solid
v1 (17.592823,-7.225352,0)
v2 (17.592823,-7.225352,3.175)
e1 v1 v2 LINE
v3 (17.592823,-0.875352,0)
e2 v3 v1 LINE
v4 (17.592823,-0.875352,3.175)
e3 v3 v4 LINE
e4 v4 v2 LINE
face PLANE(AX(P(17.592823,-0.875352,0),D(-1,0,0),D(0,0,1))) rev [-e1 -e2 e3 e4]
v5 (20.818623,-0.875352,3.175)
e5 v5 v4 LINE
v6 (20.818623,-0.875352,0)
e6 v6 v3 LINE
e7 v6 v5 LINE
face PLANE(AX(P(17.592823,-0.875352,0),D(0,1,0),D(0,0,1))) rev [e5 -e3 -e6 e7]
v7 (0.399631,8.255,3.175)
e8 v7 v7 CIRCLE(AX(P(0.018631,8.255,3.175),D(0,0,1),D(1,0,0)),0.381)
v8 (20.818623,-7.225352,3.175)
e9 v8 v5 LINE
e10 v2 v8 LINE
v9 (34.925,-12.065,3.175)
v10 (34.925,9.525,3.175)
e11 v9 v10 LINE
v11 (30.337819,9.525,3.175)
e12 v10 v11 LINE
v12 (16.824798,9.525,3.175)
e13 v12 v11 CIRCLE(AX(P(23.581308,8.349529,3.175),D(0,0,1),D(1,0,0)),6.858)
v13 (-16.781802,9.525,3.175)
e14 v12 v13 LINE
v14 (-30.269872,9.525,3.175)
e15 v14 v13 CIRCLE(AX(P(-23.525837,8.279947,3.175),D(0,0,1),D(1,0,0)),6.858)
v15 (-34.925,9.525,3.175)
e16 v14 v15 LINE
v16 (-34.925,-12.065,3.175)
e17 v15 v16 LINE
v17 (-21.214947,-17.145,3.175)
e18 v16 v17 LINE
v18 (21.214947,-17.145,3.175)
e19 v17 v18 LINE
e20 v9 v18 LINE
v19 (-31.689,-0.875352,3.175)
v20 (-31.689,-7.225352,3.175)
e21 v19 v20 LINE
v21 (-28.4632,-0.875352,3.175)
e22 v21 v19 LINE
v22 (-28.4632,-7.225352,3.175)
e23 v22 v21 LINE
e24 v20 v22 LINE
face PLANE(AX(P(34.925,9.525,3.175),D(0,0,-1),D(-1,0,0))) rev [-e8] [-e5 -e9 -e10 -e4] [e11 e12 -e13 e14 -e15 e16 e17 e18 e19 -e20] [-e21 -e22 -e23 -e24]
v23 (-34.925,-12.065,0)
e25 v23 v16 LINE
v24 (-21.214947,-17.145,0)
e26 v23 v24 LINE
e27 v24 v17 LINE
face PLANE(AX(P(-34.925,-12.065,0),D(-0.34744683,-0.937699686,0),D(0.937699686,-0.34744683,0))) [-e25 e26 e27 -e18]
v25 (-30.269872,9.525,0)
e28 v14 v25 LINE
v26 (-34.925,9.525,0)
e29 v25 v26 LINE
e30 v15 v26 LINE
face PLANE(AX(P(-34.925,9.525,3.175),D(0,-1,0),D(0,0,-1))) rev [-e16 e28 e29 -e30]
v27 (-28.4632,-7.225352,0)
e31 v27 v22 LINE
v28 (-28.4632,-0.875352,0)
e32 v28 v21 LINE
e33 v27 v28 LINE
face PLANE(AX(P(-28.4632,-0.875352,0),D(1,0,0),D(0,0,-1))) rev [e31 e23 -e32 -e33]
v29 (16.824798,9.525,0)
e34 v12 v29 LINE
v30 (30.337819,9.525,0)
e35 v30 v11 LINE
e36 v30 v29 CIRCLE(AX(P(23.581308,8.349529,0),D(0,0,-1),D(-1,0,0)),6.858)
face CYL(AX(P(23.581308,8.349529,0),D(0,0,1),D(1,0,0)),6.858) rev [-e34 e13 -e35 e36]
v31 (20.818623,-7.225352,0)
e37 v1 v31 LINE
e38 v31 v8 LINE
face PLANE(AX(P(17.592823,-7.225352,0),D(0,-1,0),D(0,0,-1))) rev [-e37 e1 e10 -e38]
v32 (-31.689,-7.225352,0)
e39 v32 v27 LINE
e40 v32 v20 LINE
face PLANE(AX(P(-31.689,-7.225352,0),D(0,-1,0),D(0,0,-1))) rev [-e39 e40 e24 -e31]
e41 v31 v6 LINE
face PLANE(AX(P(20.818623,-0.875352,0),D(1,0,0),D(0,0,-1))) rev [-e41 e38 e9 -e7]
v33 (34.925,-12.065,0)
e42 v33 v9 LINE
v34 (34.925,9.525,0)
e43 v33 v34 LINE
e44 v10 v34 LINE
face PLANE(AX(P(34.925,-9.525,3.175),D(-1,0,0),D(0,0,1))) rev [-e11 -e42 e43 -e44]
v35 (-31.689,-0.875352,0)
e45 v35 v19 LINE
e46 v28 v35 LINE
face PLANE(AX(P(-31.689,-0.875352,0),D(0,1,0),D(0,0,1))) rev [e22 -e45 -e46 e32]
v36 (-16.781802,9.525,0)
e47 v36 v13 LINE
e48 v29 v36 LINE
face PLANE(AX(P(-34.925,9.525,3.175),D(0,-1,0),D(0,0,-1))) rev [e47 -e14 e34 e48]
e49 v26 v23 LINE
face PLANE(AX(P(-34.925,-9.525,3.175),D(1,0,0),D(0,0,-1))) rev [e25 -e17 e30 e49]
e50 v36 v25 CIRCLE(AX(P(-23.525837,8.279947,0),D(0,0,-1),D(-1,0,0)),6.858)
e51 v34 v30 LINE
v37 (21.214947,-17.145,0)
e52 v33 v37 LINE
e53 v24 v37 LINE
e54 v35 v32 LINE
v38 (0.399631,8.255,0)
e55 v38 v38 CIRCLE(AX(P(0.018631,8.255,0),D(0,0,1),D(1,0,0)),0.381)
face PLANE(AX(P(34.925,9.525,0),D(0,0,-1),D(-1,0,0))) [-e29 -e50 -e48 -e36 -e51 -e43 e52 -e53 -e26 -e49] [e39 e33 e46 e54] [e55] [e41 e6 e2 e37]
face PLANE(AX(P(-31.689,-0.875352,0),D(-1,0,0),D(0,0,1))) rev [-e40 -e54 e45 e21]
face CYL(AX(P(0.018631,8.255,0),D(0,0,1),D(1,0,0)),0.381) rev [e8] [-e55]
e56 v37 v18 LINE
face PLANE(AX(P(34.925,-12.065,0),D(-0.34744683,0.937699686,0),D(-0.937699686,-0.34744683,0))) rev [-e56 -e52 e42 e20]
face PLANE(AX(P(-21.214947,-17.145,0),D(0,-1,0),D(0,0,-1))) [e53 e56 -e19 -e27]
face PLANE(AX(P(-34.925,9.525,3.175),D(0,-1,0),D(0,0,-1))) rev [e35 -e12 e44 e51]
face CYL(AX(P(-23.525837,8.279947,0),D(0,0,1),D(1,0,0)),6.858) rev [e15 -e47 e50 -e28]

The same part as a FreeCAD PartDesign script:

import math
import FreeCAD as App
import Part
import Sketcher
Q = App.Units.Quantity


def add_polygon(sketch, points):
    """Adds a closed chain of lines whose ends are joined by coincident constraints."""
    first, n = sketch.GeometryCount, len(points)
    for a, b in zip(points, points[1:] + points[:1]):
        sketch.addGeometry(Part.LineSegment(App.Vector(*a, 0), App.Vector(*b, 0)), False)
    for i in range(n):
        sketch.addConstraint(Sketcher.Constraint("Coincident", first + i, 2, first + (i + 1) % n, 1))

doc = App.newDocument("Part")
body = doc.addObject("PartDesign::Body", "Body")

# Sketch on XY plane
sketch1 = doc.addObject("Sketcher::SketchObject", "Sketch")
body.addObject(sketch1)
sketch1.AttachmentSupport = (doc.XY_Plane, [""])
sketch1.MapMode = "FlatFace"
add_polygon(sketch1, [(-35, 10), (-35, -10), (35, -10), (35, 10)])  # lines 0-3
sketch1.addConstraint(Sketcher.Constraint("Vertical", 0))
sketch1.addConstraint(Sketcher.Constraint("Horizontal", 1))
sketch1.addConstraint(Sketcher.Constraint("Vertical", 2))
sketch1.addConstraint(Sketcher.Constraint("Horizontal", 3))
sketch1.addConstraint(Sketcher.Constraint("Symmetric", 0, 2, 2, 2, -1, 1))
sketch1.addConstraint(Sketcher.Constraint("DistanceX", 1, 1, 1, 2, Q("2.75 in")))
sketch1.addConstraint(Sketcher.Constraint("DistanceY", 0, 2, 0, 1, Q("0.75 in")))
pad1 = doc.addObject("PartDesign::Pad", "Pad")
body.addObject(pad1)
pad1.Profile = sketch1
pad1.Length = Q("0.125 in")

# Sketch on XY plane
sketch2 = doc.addObject("Sketcher::SketchObject", "Sketch001")
body.addObject(sketch2)
sketch2.AttachmentSupport = (doc.XY_Plane, [""])
sketch2.MapMode = "FlatFace"
sketch2.AttachmentOffset = App.Placement(App.Vector(0, 0, 0.125 * 25.4), App.Rotation())
add_polygon(sketch2, [(-34.9, -9.5), (-34.9, -12.1), (-21.2, -17.1), (0, -17.1), (0, -9.5)])  # lines 0-4
sketch2.addConstraint(Sketcher.Constraint("Vertical", 0))
sketch2.addConstraint(Sketcher.Constraint("Horizontal", 2))
sketch2.addConstraint(Sketcher.Constraint("Vertical", 3))
sketch2.addConstraint(Sketcher.Constraint("Horizontal", 4))
sketch2.addConstraint(Sketcher.Constraint("PointOnObject", 2, 2, -2))
sketch2.addConstraint(Sketcher.Constraint("DistanceY", 0, 2, 0, 1, Q("0.1 in")))
sketch2.addConstraint(Sketcher.Constraint("DistanceY", 3, 1, 3, 2, Q("0.3 in")))
sketch2.addConstraint(Sketcher.Constraint("DistanceX", 4, 2, 4, 1, Q("1.375 in")))
sketch2.addConstraint(Sketcher.Constraint("DistanceY", 0, 2, -1, 1, Q("0.475 in")))
sketch2.addConstraint(Sketcher.Constraint("DistanceX", 2, 1, 2, 2, 21.214947))
pad2 = doc.addObject("PartDesign::Pad", "Pad001")
body.addObject(pad2)
pad2.Profile = sketch2
pad2.Length = Q("0.125 in")
pad2.Reversed = True
doc.recompute()

mirrored = doc.addObject("PartDesign::Mirrored", "Mirrored")
body.addObject(mirrored)
mirrored.Originals = [pad2]
mirrored.MirrorPlane = (doc.YZ_Plane, [""])
body.Tip = mirrored

# Sketch on XY plane
sketch3 = doc.addObject("Sketcher::SketchObject", "Sketch002")
body.addObject(sketch3)
sketch3.AttachmentSupport = (doc.XY_Plane, [""])
sketch3.MapMode = "FlatFace"
sketch3.AttachmentOffset = App.Placement(App.Vector(0, 0, 0.125 * 25.4), App.Rotation())
add_polygon(sketch3, [(-31.7, -0.9), (-31.7, -7.2), (-28.5, -7.2), (-28.5, -0.9)])  # lines 0-3
add_polygon(sketch3, [(17.6, -0.9), (17.6, -7.2), (20.8, -7.2), (20.8, -0.9)])  # lines 4-7
sketch3.addConstraint(Sketcher.Constraint("Vertical", 0))
sketch3.addConstraint(Sketcher.Constraint("Horizontal", 1))
sketch3.addConstraint(Sketcher.Constraint("Vertical", 2))
sketch3.addConstraint(Sketcher.Constraint("Horizontal", 3))
sketch3.addConstraint(Sketcher.Constraint("Vertical", 4))
sketch3.addConstraint(Sketcher.Constraint("Horizontal", 5))
sketch3.addConstraint(Sketcher.Constraint("Vertical", 6))
sketch3.addConstraint(Sketcher.Constraint("Horizontal", 7))
sketch3.addConstraint(Sketcher.Constraint("Horizontal", 1, 2, 4, 2))
sketch3.addConstraint(Sketcher.Constraint("Horizontal", 3, 2, 6, 2))
sketch3.addConstraint(Sketcher.Constraint("Equal", 3, 5))
sketch3.addConstraint(Sketcher.Constraint("DistanceY", 0, 2, 0, 1, Q("0.25 in")))
sketch3.addConstraint(Sketcher.Constraint("DistanceX", 1, 1, 1, 2, Q("0.127 in")))
sketch3.addConstraint(Sketcher.Constraint("DistanceX", 0, 2, -1, 1, 31.689))
sketch3.addConstraint(Sketcher.Constraint("DistanceY", 0, 2, -1, 1, 7.225352))
sketch3.addConstraint(Sketcher.Constraint("DistanceX", -1, 1, 4, 2, 17.592823))
pocket1 = doc.addObject("PartDesign::Pocket", "Pocket")
body.addObject(pocket1)
pocket1.Profile = sketch3
pocket1.Type = "ThroughAll"

# Sketch on XY plane
sketch4 = doc.addObject("Sketcher::SketchObject", "Sketch003")
body.addObject(sketch4)
sketch4.AttachmentSupport = (doc.XY_Plane, [""])
sketch4.MapMode = "FlatFace"
sketch4.AttachmentOffset = App.Placement(App.Vector(0, 0, 0.125 * 25.4), App.Rotation())
sketch4.addGeometry(Part.LineSegment(App.Vector(-26.4, 18.5, 0), App.Vector(-26.4, 14.5, 0)), False)
sketch4.addGeometry(Part.ArcOfCircle(Part.Circle(App.Vector(-23.5, 8.3, 0), App.Vector(0, 0, 1), 6.9), math.radians(115), math.radians(426)), False)
sketch4.addGeometry(Part.LineSegment(App.Vector(-20.8, 14.6, 0), App.Vector(-20.8, 18.5, 0)), False)
sketch4.addGeometry(Part.LineSegment(App.Vector(-20.8, 18.5, 0), App.Vector(-26.4, 18.5, 0)), False)
sketch4.addGeometry(Part.LineSegment(App.Vector(20.7, 18.6, 0), App.Vector(20.7, 14.6, 0)), False)
sketch4.addGeometry(Part.ArcOfCircle(Part.Circle(App.Vector(23.6, 8.3, 0), App.Vector(0, 0, 1), 6.9), math.radians(115), math.radians(426)), False)
sketch4.addGeometry(Part.LineSegment(App.Vector(26.3, 14.6, 0), App.Vector(26.3, 18.6, 0)), False)
sketch4.addGeometry(Part.LineSegment(App.Vector(26.3, 18.6, 0), App.Vector(20.7, 18.6, 0)), False)
sketch4.addConstraint(Sketcher.Constraint("Coincident", 0, 2, 1, 1))
sketch4.addConstraint(Sketcher.Constraint("Coincident", 1, 2, 2, 1))
sketch4.addConstraint(Sketcher.Constraint("Coincident", 2, 2, 3, 1))
sketch4.addConstraint(Sketcher.Constraint("Coincident", 3, 2, 0, 1))
sketch4.addConstraint(Sketcher.Constraint("Coincident", 4, 2, 5, 1))
sketch4.addConstraint(Sketcher.Constraint("Coincident", 5, 2, 6, 1))
sketch4.addConstraint(Sketcher.Constraint("Coincident", 6, 2, 7, 1))
sketch4.addConstraint(Sketcher.Constraint("Coincident", 7, 2, 4, 1))
sketch4.addConstraint(Sketcher.Constraint("Vertical", 0))
sketch4.addConstraint(Sketcher.Constraint("Vertical", 2))
sketch4.addConstraint(Sketcher.Constraint("Horizontal", 3))
sketch4.addConstraint(Sketcher.Constraint("Vertical", 4))
sketch4.addConstraint(Sketcher.Constraint("Vertical", 6))
sketch4.addConstraint(Sketcher.Constraint("Horizontal", 7))
sketch4.addConstraint(Sketcher.Constraint("Equal", 1, 5))
sketch4.addConstraint(Sketcher.Constraint("Equal", 3, 7))
sketch4.addConstraint(Sketcher.Constraint("Equal", 0, 4))
sketch4.addConstraint(Sketcher.Constraint("Equal", 2, 6))
sketch4.addConstraint(Sketcher.Constraint("Radius", 1, Q("0.27 in")))
sketch4.addConstraint(Sketcher.Constraint("DistanceX", 3, 2, 3, 1, Q("0.22 in")))
sketch4.addConstraint(Sketcher.Constraint("DistanceX", 0, 2, 1, 3, Q("0.112 in")))
sketch4.addConstraint(Sketcher.Constraint("DistanceY", 1, 3, 2, 2, Q("0.403 in")))
sketch4.addConstraint(Sketcher.Constraint("DistanceX", -1, 1, 5, 3, 23.581308))
sketch4.addConstraint(Sketcher.Constraint("DistanceY", -1, 1, 5, 3, 8.349529))
sketch4.addConstraint(Sketcher.Constraint("DistanceY", -1, 1, 0, 2, 14.520081))
sketch4.addConstraint(Sketcher.Constraint("DistanceX", 1, 3, -1, 1, 23.525837))
pocket2 = doc.addObject("PartDesign::Pocket", "Pocket001")
body.addObject(pocket2)
pocket2.Profile = sketch4
pocket2.Type = "ThroughAll"

# Sketch on XY plane
sketch5 = doc.addObject("Sketcher::SketchObject", "Sketch004")
body.addObject(sketch5)
sketch5.AttachmentSupport = (doc.XY_Plane, [""])
sketch5.MapMode = "FlatFace"
sketch5.AttachmentOffset = App.Placement(App.Vector(0, 0, 0.125 * 25.4), App.Rotation())
sketch5.addGeometry(Part.Circle(App.Vector(0.02, 8.26, 0), App.Vector(0, 0, 1), 0.38), False)
sketch5.addConstraint(Sketcher.Constraint("Diameter", 0, Q("0.03 in")))
sketch5.addConstraint(Sketcher.Constraint("DistanceY", -1, 1, 0, 3, Q("0.325 in")))
sketch5.addConstraint(Sketcher.Constraint("DistanceX", -1, 1, 0, 3, 0.018631))
pocket3 = doc.addObject("PartDesign::Pocket", "Pocket002")
body.addObject(pocket3)
pocket3.Profile = sketch5
pocket3.Type = "ThroughAll"

doc.recompute()
